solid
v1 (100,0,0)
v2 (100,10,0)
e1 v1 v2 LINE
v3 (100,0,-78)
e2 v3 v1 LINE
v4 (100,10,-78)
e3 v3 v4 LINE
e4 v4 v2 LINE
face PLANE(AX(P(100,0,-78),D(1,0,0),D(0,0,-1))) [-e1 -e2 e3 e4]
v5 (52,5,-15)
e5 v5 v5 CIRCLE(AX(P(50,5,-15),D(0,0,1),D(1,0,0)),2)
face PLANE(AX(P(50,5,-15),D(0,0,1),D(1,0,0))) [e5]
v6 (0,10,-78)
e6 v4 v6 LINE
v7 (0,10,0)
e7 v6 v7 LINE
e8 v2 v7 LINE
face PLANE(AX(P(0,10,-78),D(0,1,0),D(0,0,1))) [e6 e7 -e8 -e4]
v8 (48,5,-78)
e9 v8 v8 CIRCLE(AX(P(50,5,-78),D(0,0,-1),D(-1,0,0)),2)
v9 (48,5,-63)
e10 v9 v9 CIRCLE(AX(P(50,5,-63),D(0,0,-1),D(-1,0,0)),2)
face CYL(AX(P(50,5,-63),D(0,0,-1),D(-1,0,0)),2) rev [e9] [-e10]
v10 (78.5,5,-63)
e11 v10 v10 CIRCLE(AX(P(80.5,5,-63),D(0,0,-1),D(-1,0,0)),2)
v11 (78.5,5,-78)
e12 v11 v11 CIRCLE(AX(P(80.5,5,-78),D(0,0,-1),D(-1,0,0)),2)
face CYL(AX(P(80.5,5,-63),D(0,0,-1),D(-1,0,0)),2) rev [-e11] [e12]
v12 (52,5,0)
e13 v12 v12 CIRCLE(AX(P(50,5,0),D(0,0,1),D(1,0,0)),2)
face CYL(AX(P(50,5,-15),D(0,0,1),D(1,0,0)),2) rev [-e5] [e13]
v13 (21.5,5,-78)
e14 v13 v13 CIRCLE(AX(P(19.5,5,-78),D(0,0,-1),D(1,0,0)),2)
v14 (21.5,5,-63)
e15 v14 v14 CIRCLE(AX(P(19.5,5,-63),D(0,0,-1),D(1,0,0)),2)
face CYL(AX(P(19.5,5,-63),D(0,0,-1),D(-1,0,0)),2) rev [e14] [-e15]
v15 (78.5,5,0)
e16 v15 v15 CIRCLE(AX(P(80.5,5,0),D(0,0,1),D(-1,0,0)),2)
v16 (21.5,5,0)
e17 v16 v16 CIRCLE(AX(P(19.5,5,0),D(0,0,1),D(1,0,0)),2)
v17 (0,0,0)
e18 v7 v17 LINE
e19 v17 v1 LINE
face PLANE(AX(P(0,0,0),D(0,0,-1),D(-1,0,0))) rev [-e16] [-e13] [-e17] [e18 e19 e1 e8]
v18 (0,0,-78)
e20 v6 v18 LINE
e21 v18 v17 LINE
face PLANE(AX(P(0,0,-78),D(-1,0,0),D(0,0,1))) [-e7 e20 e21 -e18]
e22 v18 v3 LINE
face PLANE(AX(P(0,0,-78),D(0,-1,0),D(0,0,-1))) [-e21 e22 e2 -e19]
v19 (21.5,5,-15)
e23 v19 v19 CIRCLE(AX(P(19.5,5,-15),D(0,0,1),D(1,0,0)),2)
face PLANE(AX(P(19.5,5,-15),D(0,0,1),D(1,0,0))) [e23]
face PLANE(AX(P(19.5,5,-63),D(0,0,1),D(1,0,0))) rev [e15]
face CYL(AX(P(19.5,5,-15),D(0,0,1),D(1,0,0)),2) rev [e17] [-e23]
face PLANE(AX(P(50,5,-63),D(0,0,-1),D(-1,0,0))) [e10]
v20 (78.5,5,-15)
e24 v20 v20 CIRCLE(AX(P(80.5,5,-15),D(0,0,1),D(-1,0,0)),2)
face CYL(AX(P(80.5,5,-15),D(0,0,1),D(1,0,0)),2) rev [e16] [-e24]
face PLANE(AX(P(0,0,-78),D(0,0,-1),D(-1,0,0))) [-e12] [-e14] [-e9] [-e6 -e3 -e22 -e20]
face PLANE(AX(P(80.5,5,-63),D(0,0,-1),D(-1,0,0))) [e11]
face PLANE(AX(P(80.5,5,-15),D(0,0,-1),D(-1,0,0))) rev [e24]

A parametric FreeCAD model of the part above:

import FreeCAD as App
import Part
import Sketcher
from FreeCAD import Vector


def add_polygon(sketch, points):
    """Adds a closed chain of lines whose ends are joined by coincident constraints."""
    first, n = sketch.GeometryCount, len(points)
    for a, b in zip(points, points[1:] + points[:1]):
        sketch.addGeometry(Part.LineSegment(App.Vector(*a, 0), App.Vector(*b, 0)), False)
    for i in range(n):
        sketch.addConstraint(Sketcher.Constraint("Coincident", first + i, 2, first + (i + 1) % n, 1))

doc = App.newDocument("Part")
body = doc.addObject("PartDesign::Body", "Body")

# Sketch on XY plane
sketch1 = body.newObject("Sketcher::SketchObject", "Sketch")
sketch1.AttachmentSupport = (doc.getObject("XY_Plane"), [""])
sketch1.MapMode = "FlatFace"
add_polygon(sketch1, [(0, 10), (0, 0), (100, 0), (100, 10)])  # lines 0-3
sketch1.addConstraint(Sketcher.Constraint("Vertical", 0))
sketch1.addConstraint(Sketcher.Constraint("Horizontal", 1))
sketch1.addConstraint(Sketcher.Constraint("Vertical", 2))
sketch1.addConstraint(Sketcher.Constraint("Horizontal", 3))
sketch1.addConstraint(Sketcher.Constraint("Coincident", 0, 2, -1, 1))
sketch1.addConstraint(Sketcher.Constraint("DistanceX", 1, 1, 1, 2, 100.0))
sketch1.addConstraint(Sketcher.Constraint("DistanceY", 0, 2, 0, 1, 10.0))
pad1 = body.newObject("PartDesign::Pad", "Pad")
pad1.Profile = sketch1
pad1.Length = 78
pad1.Reversed = True

# Sketch on XY plane
sketch2 = body.newObject("Sketcher::SketchObject", "Sketch001")
sketch2.AttachmentSupport = (doc.getObject("XY_Plane"), [""])
sketch2.MapMode = "FlatFace"
sketch2.addGeometry(Part.Circle(Vector(19.5, 5, 0), Vector(0, 0, 1), 2), False)
sketch2.addGeometry(Part.Circle(Vector(50, 5, 0), Vector(0, 0, 1), 2), False)
sketch2.addGeometry(Part.Circle(Vector(80.5, 5, 0), Vector(0, 0, 1), 2), False)
sketch2.addConstraint(Sketcher.Constraint("Equal", 0, 1))
sketch2.addConstraint(Sketcher.Constraint("Equal", 1, 2))
sketch2.addConstraint(Sketcher.Constraint("Horizontal", 0, 3, 1, 3))
sketch2.addConstraint(Sketcher.Constraint("Horizontal", 1, 3, 2, 3))
sketch2.addConstraint(Sketcher.Constraint("Diameter", 0, 4.0))
sketch2.addConstraint(Sketcher.Constraint("DistanceY", -1, 1, 0, 3, 5.0))
sketch2.addConstraint(Sketcher.Constraint("DistanceX", -1, 1, 1, 3, 50.0))
sketch2.addConstraint(Sketcher.Constraint("DistanceX", 0, 3, 2, 3, 61.0))
sketch2.addConstraint(Sketcher.Constraint("DistanceX", -1, 1, 0, 3, 19.5))
pocket1 = body.newObject("PartDesign::Pocket", "Pocket")
pocket1.Profile = sketch2
pocket1.Length = 15

# Sketch on XY plane
sketch3 = body.newObject("Sketcher::SketchObject", "Sketch002")
sketch3.AttachmentSupport = (doc.getObject("XY_Plane"), [""])
sketch3.MapMode = "FlatFace"
sketch3.AttachmentOffset = App.Placement(Vector(0, 0, -63), App.Rotation())
sketch3.addGeometry(Part.Circle(Vector(80.5, 5, 0), Vector(0, 0, 1), 2), False)
sketch3.addGeometry(Part.Circle(Vector(50, 5, 0), Vector(0, 0, 1), 2), False)
sketch3.addGeometry(Part.Circle(Vector(19.5, 5, 0), Vector(0, 0, 1), 2), False)
sketch3.addConstraint(Sketcher.Constraint("Equal", 0, 1))
sketch3.addConstraint(Sketcher.Constraint("Equal", 1, 2))
sketch3.addConstraint(Sketcher.Constraint("Horizontal", 0, 3, 1, 3))
sketch3.addConstraint(Sketcher.Constraint("Horizontal", 1, 3, 2, 3))
sketch3.addConstraint(Sketcher.Constraint("Diameter", 0, 4.0))
sketch3.addConstraint(Sketcher.Constraint("DistanceY", -1, 1, 0, 3, 5.0))
sketch3.addConstraint(Sketcher.Constraint("DistanceX", -1, 1, 1, 3, 50.0))
sketch3.addConstraint(Sketcher.Constraint("DistanceX", 2, 3, 0, 3, 61.0))
sketch3.addConstraint(Sketcher.Constraint("DistanceX", -1, 1, 0, 3, 80.5))
pocket2 = body.newObject("PartDesign::Pocket", "Pocket001")
pocket2.Profile = sketch3
pocket2.Length = 15

doc.recompute()
